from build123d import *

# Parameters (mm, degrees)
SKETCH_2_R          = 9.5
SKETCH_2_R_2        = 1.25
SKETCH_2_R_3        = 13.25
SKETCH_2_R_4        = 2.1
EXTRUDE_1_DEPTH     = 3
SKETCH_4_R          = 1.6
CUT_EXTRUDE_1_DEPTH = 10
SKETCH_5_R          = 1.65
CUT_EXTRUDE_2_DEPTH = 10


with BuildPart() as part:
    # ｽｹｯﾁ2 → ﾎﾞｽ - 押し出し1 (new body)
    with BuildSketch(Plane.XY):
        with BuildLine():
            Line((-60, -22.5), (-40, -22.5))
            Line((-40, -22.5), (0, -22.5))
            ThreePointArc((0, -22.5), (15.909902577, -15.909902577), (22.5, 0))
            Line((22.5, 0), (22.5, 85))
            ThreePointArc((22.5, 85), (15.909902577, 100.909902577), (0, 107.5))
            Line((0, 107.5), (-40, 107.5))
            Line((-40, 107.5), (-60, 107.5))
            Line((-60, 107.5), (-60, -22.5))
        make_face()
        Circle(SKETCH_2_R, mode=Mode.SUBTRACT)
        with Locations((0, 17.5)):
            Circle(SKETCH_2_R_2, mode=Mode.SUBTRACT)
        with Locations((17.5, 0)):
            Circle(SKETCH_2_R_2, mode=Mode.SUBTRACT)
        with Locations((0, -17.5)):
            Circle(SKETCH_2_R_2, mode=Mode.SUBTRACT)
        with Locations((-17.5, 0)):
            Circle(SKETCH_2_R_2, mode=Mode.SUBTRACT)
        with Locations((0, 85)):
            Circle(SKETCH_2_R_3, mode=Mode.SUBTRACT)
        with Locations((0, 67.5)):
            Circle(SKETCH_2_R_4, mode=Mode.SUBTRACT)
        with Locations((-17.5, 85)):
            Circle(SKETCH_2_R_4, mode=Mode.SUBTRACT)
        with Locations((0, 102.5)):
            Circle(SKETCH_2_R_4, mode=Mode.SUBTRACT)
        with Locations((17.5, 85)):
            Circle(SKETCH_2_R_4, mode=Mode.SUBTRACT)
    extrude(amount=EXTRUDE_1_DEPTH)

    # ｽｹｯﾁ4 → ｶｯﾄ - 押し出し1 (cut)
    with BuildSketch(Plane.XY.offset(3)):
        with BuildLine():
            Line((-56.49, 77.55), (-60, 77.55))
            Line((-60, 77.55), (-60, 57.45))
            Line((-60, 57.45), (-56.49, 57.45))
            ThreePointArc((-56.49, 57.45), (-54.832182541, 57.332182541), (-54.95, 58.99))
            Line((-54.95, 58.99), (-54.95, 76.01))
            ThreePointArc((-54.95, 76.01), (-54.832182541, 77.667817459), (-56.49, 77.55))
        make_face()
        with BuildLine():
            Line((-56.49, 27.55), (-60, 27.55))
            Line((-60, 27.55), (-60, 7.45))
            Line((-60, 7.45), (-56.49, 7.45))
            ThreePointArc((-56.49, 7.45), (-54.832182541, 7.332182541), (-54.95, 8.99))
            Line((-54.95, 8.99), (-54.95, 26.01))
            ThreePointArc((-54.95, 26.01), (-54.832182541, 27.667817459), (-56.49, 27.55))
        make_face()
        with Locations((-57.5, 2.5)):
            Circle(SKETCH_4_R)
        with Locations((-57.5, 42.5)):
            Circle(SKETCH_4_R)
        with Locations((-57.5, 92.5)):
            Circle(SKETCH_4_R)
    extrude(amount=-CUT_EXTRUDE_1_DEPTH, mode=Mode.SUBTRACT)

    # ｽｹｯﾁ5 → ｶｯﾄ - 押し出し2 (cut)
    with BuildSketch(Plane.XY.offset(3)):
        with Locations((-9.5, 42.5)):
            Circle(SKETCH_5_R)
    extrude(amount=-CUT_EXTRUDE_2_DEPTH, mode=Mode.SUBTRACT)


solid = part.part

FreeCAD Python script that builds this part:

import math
import FreeCAD as App
import Part
import Sketcher

doc = App.newDocument("Part")
body = doc.addObject("PartDesign::Body", "Body")

# Sketch on XY plane
sketch1 = doc.addObject("Sketcher::SketchObject", "Sketch")
body.addObject(sketch1)
sketch1.AttachmentSupport = (doc.XY_Plane, [""])
sketch1.MapMode = "FlatFace"
sketch1.addGeometry([
    Part.LineSegment(App.Vector(-60, -22.5, 0), App.Vector(0, -22.5, 0)),  # 0
    Part.ArcOfCircle(Part.Circle(App.Vector(0, 0, 0), App.Vector(0, 0, 1), 22.5), math.radians(-90), math.radians(0)),  # 1
    Part.LineSegment(App.Vector(22.5, 0, 0), App.Vector(22.5, 85, 0)),  # 2
    Part.ArcOfCircle(Part.Circle(App.Vector(0, 85, 0), App.Vector(0, 0, 1), 22.5), math.radians(0), math.radians(90)),  # 3
    Part.LineSegment(App.Vector(0, 107.5, 0), App.Vector(-60, 107.5, 0)),  # 4
    Part.LineSegment(App.Vector(-60, 107.5, 0), App.Vector(-60, -22.5, 0)),  # 5
    Part.Circle(App.Vector(-17.5, 0, 0), App.Vector(0, 0, 1), 1.25),  # 6
    Part.Circle(App.Vector(0, -17.5, 0), App.Vector(0, 0, 1), 1.25),  # 7
    Part.Circle(App.Vector(0, 0, 0), App.Vector(0, 0, 1), 9.5),  # 8
    Part.Circle(App.Vector(17.5, 0, 0), App.Vector(0, 0, 1), 1.25),  # 9
    Part.Circle(App.Vector(0, 17.5, 0), App.Vector(0, 0, 1), 1.25),  # 10
    Part.Circle(App.Vector(-17.5, 85, 0), App.Vector(0, 0, 1), 2.1),  # 11
    Part.Circle(App.Vector(0, 85, 0), App.Vector(0, 0, 1), 13.25),  # 12
    Part.Circle(App.Vector(0, 67.5, 0), App.Vector(0, 0, 1), 2.1),  # 13
    Part.Circle(App.Vector(0, 102.5, 0), App.Vector(0, 0, 1), 2.1),  # 14
    Part.Circle(App.Vector(17.5, 85, 0), App.Vector(0, 0, 1), 2.1),  # 15
], False)
sketch1.addConstraint([
    Sketcher.Constraint("Tangent", 0, 2, 1, 1),
    Sketcher.Constraint("Tangent", 1, 2, 2, 1),
    Sketcher.Constraint("Tangent", 2, 2, 3, 1),
    Sketcher.Constraint("Tangent", 3, 2, 4, 1),
    Sketcher.Constraint("Coincident", 4, 2, 5, 1),
    Sketcher.Constraint("Coincident", 5, 2, 0, 1),
    Sketcher.Constraint("Horizontal", 0),
    Sketcher.Constraint("Vertical", 2),
    Sketcher.Constraint("Horizontal", 4),
    Sketcher.Constraint("Vertical", 5),
    Sketcher.Constraint("Coincident", 1, 3, -1, 1),
    Sketcher.Constraint("Coincident", 8, 3, -1, 1),
    Sketcher.Constraint("Coincident", 12, 3, 3, 3),
    Sketcher.Constraint("Equal", 1, 3),
    Sketcher.Constraint("Equal", 6, 7),
    Sketcher.Constraint("Equal", 7, 9),
    Sketcher.Constraint("Equal", 9, 10),
    Sketcher.Constraint("Equal", 11, 13),
    Sketcher.Constraint("Equal", 13, 14),
    Sketcher.Constraint("Equal", 14, 15),
    Sketcher.Constraint("Symmetric", 6, 3, 9, 3, -1, 1),
    Sketcher.Constraint("Symmetric", 7, 3, 10, 3, -1, 1),
    Sketcher.Constraint("Symmetric", 11, 3, 15, 3, -2),
    Sketcher.Constraint("PointOnObject", 6, 3, -1),
    Sketcher.Constraint("PointOnObject", 7, 3, -2),
    Sketcher.Constraint("PointOnObject", 13, 3, -2),
    Sketcher.Constraint("PointOnObject", 14, 3, -2),
    Sketcher.Constraint("Horizontal", 3, 3, 11, 3),
    Sketcher.Constraint("Vertical", 6, 3, 11, 3),
    Sketcher.Constraint("Diameter", 8, 19.0),
    Sketcher.Constraint("Diameter", 6, 2.5),
    Sketcher.Constraint("Diameter", 11, 4.2),
    Sketcher.Constraint("Diameter", 12, 26.5),
    Sketcher.Constraint("Radius", 1, 22.5),
    Sketcher.Constraint("DistanceX", 0, 1, 0, 2, 60.0),
    Sketcher.Constraint("DistanceY", 2, 1, 2, 2, 85.0),
    Sketcher.Constraint("DistanceX", 6, 3, 9, 3, 35.0),
    Sketcher.Constraint("DistanceY", 7, 3, 10, 3, 35.0),
    Sketcher.Constraint("DistanceY", 10, 3, 13, 3, 50.0),
    Sketcher.Constraint("DistanceY", 13, 3, 14, 3, 35.0),
])
pad1 = doc.addObject("PartDesign::Pad", "Pad")
body.addObject(pad1)
pad1.Profile = sketch1
pad1.Length = 3

# Sketch on XY plane
sketch2 = doc.addObject("Sketcher::SketchObject", "Sketch001")
body.addObject(sketch2)
sketch2.AttachmentSupport = (doc.XY_Plane, [""])
sketch2.MapMode = "FlatFace"
sketch2.AttachmentOffset = App.Placement(App.Vector(0, 0, 3), App.Rotation())
sketch2.addGeometry([
    Part.LineSegment(App.Vector(-56.49, 77.55, 0), App.Vector(-60, 77.55, 0)),  # 0
    Part.LineSegment(App.Vector(-60, 77.55, 0), App.Vector(-60, 57.45, 0)),  # 1
    Part.LineSegment(App.Vector(-60, 57.45, 0), App.Vector(-56.49, 57.45, 0)),  # 2
    Part.ArcOfCircle(Part.Circle(App.Vector(-55.61, 58.11, 0), App.Vector(0, 0, 1), 1.1), math.radians(-143.130102), math.radians(53.130102)),  # 3
    Part.LineSegment(App.Vector(-54.95, 58.99, 0), App.Vector(-54.95, 76.01, 0)),  # 4
    Part.ArcOfCircle(Part.Circle(App.Vector(-55.61, 76.89, 0), App.Vector(0, 0, 1), 1.1), math.radians(-53.130102), math.radians(143.130102)),  # 5
    Part.LineSegment(App.Vector(-56.49, 27.55, 0), App.Vector(-60, 27.55, 0)),  # 6
    Part.LineSegment(App.Vector(-60, 27.55, 0), App.Vector(-60, 7.45, 0)),  # 7
    Part.LineSegment(App.Vector(-60, 7.45, 0), App.Vector(-56.49, 7.45, 0)),  # 8
    Part.ArcOfCircle(Part.Circle(App.Vector(-55.61, 8.11, 0), App.Vector(0, 0, 1), 1.1), math.radians(-143.130102), math.radians(53.130102)),  # 9
    Part.LineSegment(App.Vector(-54.95, 8.99, 0), App.Vector(-54.95, 26.01, 0)),  # 10
    Part.ArcOfCircle(Part.Circle(App.Vector(-55.61, 26.89, 0), App.Vector(0, 0, 1), 1.1), math.radians(-53.130102), math.radians(143.130102)),  # 11
    Part.Circle(App.Vector(-57.5, 2.5, 0), App.Vector(0, 0, 1), 1.6),  # 12
    Part.Circle(App.Vector(-57.5, 42.5, 0), App.Vector(0, 0, 1), 1.6),  # 13
    Part.Circle(App.Vector(-57.5, 92.5, 0), App.Vector(0, 0, 1), 1.6),  # 14
], False)
sketch2.addConstraint([
    Sketcher.Constraint("Coincident", 0, 2, 1, 1),
    Sketcher.Constraint("Coincident", 1, 2, 2, 1),
    Sketcher.Constraint("Coincident", 2, 2, 3, 1),
    Sketcher.Constraint("Coincident", 3, 2, 4, 1),
    Sketcher.Constraint("Coincident", 4, 2, 5, 1),
    Sketcher.Constraint("Coincident", 5, 2, 0, 1),
    Sketcher.Constraint("Coincident", 6, 2, 7, 1),
    Sketcher.Constraint("Coincident", 7, 2, 8, 1),
    Sketcher.Constraint("Coincident", 8, 2, 9, 1),
    Sketcher.Constraint("Coincident", 9, 2, 10, 1),
    Sketcher.Constraint("Coincident", 10, 2, 11, 1),
    Sketcher.Constraint("Coincident", 11, 2, 6, 1),
    Sketcher.Constraint("Horizontal", 0),
    Sketcher.Constraint("Vertical", 1),
    Sketcher.Constraint("Horizontal", 2),
    Sketcher.Constraint("Vertical", 4),
    Sketcher.Constraint("Horizontal", 6),
    Sketcher.Constraint("Vertical", 7),
    Sketcher.Constraint("Horizontal", 8),
    Sketcher.Constraint("Vertical", 10),
    Sketcher.Constraint("Equal", 3, 5),
    Sketcher.Constraint("Equal", 5, 9),
    Sketcher.Constraint("Equal", 9, 11),
    Sketcher.Constraint("Equal", 12, 13),
    Sketcher.Constraint("Equal", 13, 14),
    Sketcher.Constraint("Vertical", 3, 3, 5, 3),
    Sketcher.Constraint("Vertical", 5, 3, 9, 3),
    Sketcher.Constraint("Vertical", 9, 3, 11, 3),
    Sketcher.Constraint("Vertical", 12, 3, 13, 3),
    Sketcher.Constraint("Vertical", 13, 3, 14, 3),
    Sketcher.Constraint("Vertical", 2, 2, 5, 2),
    Sketcher.Constraint("Vertical", 1, 2, 6, 2),
    Sketcher.Constraint("Vertical", 5, 2, 8, 2),
    Sketcher.Constraint("Vertical", 4, 2, 9, 2),
    Sketcher.Constraint("Vertical", 8, 2, 11, 2),
    Sketcher.Constraint("Equal", 1, 7),
    Sketcher.Constraint("Diameter", 12, 3.2),
    Sketcher.Constraint("Radius", 3, 1.1),
    Sketcher.Constraint("DistanceY", 1, 2, 1, 1, 20.1),
    Sketcher.Constraint("DistanceX", 0, 2, -1, 1, 60.0),
    Sketcher.Constraint("DistanceY", 9, 3, 3, 3, 50.0),
    Sketcher.Constraint("DistanceY", 12, 3, 13, 3, 40.0),
    Sketcher.Constraint("DistanceY", 13, 3, 14, 3, 50.0),
    Sketcher.Constraint("DistanceX", 0, 2, 0, 1, 3.51),
    Sketcher.Constraint("DistanceY", 4, 1, 4, 2, 17.02),
    Sketcher.Constraint("DistanceX", 12, 3, -1, 1, 57.5),
    Sketcher.Constraint("DistanceY", -1, 1, 12, 3, 2.5),
    Sketcher.Constraint("DistanceY", 3, 2, 5, 3, 17.9),
    Sketcher.Constraint("DistanceY", -1, 1, 3, 3, 58.11),
])
pocket1 = doc.addObject("PartDesign::Pocket", "Pocket")
body.addObject(pocket1)
pocket1.Profile = sketch2
pocket1.Length = 10

# Sketch on XY plane
sketch3 = doc.addObject("Sketcher::SketchObject", "Sketch002")
body.addObject(sketch3)
sketch3.AttachmentSupport = (doc.XY_Plane, [""])
sketch3.MapMode = "FlatFace"
sketch3.AttachmentOffset = App.Placement(App.Vector(0, 0, 3), App.Rotation())
sketch3.addGeometry(Part.Circle(App.Vector(-9.5, 42.5, 0), App.Vector(0, 0, 1), 1.65), False)
sketch3.addConstraint([
    Sketcher.Constraint("Diameter", 0, 3.3),
    Sketcher.Constraint("DistanceX", 0, 3, -1, 1, 9.5),
    Sketcher.Constraint("DistanceY", -1, 1, 0, 3, 42.5),
])
pocket2 = doc.addObject("PartDesign::Pocket", "Pocket001")
body.addObject(pocket2)
pocket2.Profile = sketch3
pocket2.Length = 10

doc.recompute()
